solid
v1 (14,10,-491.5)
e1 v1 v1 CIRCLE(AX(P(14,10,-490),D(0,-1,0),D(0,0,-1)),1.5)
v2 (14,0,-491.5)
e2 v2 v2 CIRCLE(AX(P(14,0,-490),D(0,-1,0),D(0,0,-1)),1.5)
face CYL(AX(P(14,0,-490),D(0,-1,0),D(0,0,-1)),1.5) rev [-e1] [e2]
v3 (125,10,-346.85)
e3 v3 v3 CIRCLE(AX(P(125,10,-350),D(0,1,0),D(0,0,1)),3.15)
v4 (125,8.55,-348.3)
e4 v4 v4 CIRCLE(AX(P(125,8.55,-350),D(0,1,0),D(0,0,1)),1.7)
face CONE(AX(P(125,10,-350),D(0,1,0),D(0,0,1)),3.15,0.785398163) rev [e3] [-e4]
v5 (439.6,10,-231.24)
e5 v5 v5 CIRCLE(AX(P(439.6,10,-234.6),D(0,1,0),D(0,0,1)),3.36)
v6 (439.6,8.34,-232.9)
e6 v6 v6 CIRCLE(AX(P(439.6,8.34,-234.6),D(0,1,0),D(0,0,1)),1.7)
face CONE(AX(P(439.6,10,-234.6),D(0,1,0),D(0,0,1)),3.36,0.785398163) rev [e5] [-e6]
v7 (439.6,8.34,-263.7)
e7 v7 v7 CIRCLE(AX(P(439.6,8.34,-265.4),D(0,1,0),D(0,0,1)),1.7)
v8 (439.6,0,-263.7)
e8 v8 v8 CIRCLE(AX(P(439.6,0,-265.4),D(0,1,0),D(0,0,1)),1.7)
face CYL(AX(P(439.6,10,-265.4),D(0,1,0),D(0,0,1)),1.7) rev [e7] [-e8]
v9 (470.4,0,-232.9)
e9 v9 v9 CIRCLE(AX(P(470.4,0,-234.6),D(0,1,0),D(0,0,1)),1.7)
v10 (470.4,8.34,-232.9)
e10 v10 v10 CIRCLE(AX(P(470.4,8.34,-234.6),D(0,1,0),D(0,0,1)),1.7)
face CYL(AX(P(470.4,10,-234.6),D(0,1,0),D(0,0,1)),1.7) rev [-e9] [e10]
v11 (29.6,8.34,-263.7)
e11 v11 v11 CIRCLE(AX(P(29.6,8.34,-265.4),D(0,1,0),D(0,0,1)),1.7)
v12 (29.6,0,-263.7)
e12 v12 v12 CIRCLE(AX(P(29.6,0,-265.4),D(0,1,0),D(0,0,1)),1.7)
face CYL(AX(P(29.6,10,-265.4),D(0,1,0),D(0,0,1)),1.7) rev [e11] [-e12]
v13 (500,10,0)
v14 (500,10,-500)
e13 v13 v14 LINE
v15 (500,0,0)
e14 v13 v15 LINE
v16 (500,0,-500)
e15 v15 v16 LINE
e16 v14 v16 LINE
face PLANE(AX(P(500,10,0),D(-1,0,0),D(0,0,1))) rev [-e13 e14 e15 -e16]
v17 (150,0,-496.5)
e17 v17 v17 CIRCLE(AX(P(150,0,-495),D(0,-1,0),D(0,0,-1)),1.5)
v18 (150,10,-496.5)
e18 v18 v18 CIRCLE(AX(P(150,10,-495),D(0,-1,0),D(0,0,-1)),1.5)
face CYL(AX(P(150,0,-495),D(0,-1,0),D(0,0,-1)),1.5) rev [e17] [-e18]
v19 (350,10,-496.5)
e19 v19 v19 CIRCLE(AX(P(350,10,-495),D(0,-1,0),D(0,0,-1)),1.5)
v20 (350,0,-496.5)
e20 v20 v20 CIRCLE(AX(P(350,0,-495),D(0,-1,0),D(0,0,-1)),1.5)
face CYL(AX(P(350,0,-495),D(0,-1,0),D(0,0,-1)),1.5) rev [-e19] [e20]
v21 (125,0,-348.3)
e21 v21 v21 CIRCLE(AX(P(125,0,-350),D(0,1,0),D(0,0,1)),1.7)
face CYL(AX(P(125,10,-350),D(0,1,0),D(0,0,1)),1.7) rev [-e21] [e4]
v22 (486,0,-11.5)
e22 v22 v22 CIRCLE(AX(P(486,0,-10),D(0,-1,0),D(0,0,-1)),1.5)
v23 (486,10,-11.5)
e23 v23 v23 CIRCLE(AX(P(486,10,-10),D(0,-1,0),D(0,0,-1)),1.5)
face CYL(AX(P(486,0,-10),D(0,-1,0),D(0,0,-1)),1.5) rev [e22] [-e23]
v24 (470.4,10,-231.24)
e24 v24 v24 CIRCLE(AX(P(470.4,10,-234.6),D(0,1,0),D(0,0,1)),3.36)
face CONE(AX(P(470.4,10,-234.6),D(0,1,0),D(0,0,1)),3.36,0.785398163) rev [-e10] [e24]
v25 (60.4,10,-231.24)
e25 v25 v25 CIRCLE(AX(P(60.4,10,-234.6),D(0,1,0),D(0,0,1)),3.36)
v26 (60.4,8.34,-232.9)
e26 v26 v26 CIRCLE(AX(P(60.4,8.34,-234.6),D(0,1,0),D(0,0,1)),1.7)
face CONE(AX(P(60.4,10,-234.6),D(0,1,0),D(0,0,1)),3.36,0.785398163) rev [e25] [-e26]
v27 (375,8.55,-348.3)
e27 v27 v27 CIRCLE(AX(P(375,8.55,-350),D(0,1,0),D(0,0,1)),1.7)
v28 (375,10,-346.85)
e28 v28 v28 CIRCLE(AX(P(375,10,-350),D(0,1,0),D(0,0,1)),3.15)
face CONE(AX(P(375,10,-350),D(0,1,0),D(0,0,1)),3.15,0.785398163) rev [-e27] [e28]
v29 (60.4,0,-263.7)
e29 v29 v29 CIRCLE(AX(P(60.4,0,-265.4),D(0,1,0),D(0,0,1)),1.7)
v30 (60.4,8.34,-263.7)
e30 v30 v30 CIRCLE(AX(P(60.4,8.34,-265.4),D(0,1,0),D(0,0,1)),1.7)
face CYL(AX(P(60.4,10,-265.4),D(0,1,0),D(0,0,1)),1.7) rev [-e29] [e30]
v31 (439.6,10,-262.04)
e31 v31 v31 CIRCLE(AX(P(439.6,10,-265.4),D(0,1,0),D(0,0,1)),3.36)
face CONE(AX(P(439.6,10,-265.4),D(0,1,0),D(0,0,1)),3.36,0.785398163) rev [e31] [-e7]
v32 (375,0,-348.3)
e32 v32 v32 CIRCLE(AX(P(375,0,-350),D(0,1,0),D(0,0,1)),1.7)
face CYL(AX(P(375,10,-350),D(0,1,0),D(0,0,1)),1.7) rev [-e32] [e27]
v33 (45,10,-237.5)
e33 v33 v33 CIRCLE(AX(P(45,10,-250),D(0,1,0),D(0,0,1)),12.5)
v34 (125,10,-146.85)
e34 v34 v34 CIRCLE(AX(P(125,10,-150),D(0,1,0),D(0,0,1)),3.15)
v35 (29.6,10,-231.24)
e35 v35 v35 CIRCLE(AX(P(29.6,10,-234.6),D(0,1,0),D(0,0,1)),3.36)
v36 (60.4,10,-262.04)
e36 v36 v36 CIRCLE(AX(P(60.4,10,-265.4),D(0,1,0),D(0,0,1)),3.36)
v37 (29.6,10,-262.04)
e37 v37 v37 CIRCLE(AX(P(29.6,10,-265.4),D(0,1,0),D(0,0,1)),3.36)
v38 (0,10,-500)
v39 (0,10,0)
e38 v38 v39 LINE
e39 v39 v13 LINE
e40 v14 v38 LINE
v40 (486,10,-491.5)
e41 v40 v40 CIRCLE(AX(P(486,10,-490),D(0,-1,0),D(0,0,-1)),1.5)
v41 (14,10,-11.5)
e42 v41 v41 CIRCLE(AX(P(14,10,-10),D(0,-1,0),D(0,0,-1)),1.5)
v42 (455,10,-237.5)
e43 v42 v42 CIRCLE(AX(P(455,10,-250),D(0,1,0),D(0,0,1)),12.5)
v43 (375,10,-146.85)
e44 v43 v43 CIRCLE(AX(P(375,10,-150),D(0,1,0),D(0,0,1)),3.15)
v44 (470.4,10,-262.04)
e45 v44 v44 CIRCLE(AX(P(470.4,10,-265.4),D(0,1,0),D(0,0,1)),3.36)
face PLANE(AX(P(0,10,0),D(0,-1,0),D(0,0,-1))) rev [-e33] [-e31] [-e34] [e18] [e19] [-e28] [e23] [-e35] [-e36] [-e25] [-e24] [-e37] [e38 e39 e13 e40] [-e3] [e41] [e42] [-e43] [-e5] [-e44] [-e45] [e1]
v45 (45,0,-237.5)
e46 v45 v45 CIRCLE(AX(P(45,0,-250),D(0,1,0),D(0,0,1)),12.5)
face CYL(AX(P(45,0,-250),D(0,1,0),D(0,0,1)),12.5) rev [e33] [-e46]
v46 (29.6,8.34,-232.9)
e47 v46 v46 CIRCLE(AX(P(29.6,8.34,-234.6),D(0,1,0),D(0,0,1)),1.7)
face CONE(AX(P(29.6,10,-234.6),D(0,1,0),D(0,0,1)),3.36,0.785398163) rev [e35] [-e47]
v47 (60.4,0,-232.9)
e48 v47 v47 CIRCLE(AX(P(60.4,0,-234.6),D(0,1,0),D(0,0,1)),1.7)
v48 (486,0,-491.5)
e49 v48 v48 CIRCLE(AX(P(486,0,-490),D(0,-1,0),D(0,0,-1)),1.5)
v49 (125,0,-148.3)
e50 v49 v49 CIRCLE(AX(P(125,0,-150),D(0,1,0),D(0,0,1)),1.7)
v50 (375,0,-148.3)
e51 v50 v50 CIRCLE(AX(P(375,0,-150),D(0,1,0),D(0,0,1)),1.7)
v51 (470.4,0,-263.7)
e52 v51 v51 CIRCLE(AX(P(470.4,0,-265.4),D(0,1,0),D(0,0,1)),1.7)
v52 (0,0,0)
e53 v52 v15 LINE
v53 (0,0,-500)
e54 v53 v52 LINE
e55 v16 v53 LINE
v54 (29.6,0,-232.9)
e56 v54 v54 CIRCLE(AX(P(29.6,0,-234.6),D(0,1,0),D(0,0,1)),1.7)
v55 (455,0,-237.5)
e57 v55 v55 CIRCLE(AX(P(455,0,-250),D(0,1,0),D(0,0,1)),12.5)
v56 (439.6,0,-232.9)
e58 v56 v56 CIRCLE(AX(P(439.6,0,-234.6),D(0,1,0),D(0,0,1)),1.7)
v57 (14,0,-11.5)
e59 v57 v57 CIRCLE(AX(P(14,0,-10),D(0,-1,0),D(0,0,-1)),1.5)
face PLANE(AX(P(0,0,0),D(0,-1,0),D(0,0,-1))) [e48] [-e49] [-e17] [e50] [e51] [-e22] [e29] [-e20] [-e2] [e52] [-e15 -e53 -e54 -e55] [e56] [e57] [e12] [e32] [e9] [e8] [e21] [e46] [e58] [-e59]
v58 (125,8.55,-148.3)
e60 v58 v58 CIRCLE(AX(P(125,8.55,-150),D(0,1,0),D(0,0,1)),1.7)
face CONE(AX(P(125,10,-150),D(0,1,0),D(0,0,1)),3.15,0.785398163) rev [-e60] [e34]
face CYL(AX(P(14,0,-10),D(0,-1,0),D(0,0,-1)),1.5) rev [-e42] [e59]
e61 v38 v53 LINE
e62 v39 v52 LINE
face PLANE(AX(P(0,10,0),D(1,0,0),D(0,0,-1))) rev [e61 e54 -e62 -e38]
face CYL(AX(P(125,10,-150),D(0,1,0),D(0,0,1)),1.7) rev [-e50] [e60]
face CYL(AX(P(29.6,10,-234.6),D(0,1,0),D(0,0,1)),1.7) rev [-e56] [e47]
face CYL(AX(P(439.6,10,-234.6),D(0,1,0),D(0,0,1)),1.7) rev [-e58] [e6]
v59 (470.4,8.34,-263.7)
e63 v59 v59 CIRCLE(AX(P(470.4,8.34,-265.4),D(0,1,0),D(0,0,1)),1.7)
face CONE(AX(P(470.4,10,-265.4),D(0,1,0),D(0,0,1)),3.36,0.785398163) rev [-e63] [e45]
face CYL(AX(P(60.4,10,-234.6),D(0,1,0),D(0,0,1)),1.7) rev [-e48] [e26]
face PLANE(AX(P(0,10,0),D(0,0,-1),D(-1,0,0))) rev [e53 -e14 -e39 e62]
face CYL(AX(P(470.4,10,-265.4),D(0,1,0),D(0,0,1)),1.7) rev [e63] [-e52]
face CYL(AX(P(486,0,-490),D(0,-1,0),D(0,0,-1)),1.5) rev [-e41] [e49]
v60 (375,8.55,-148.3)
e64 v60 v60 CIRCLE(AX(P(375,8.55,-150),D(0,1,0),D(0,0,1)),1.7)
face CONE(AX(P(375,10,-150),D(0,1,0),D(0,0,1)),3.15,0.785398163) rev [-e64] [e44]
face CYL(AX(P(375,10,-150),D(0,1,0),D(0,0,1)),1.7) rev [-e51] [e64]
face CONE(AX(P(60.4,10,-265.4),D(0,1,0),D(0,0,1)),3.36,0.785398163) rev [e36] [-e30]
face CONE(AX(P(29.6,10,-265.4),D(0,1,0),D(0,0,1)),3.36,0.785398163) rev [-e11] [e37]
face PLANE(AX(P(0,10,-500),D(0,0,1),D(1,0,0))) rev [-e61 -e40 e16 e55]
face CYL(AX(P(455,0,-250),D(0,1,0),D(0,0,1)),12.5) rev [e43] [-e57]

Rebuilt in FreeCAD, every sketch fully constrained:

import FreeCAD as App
import Part
import Sketcher
from FreeCAD import Vector
Q = App.Units.Quantity


def add_polygon(sketch, points):
    """Adds a closed chain of lines whose ends are joined by coincident constraints."""
    first, n = sketch.GeometryCount, len(points)
    for a, b in zip(points, points[1:] + points[:1]):
        sketch.addGeometry(Part.LineSegment(App.Vector(*a, 0), App.Vector(*b, 0)), False)
    for i in range(n):
        sketch.addConstraint(Sketcher.Constraint("Coincident", first + i, 2, first + (i + 1) % n, 1))

doc = App.newDocument("Part")
body = doc.addObject("PartDesign::Body", "Body")

# Sketch on XZ plane
sketch1 = body.newObject("Sketcher::SketchObject", "Sketch")
sketch1.AttachmentSupport = (doc.getObject("XZ_Plane"), [""])
sketch1.MapMode = "FlatFace"
add_polygon(sketch1, [(0, -500), (0, 0), (500, 0), (500, -500)])  # lines 0-3
sketch1.addConstraint([
    Sketcher.Constraint("Vertical", 0),
    Sketcher.Constraint("Horizontal", 1),
    Sketcher.Constraint("Vertical", 2),
    Sketcher.Constraint("Horizontal", 3),
    Sketcher.Constraint("Coincident", 0, 2, -1, 1),
    Sketcher.Constraint("Equal", 3, 0),
    Sketcher.Constraint("DistanceX", 1, 1, 1, 2, Q("500 mm")),
])
pad1 = body.newObject("PartDesign::Pad", "Pad")
pad1.Profile = sketch1
pad1.Length = 10
pad1.Reversed = True

# Sketch on XZ plane
sketch2 = body.newObject("Sketcher::SketchObject", "Sketch001")
sketch2.AttachmentSupport = (doc.getObject("XZ_Plane"), [""])
sketch2.MapMode = "FlatFace"
sketch2.AttachmentOffset = App.Placement(Vector(0, 0, -10), App.Rotation())
sketch2.addGeometry([
    Part.Circle(Vector(45, -250, 0), Vector(0, 0, 1), 12),
    Part.Circle(Vector(455, -250, 0), Vector(0, 0, 1), 12),
], False)
sketch2.addConstraint([
    Sketcher.Constraint("Equal", 0, 1),
    Sketcher.Constraint("Horizontal", 0, 3, 1, 3),
    Sketcher.Constraint("Diameter", 0, Q("25 mm")),
    Sketcher.Constraint("DistanceX", -1, 1, 0, 3, Q("45 mm")),
    Sketcher.Constraint("DistanceY", 0, 3, -1, 1, Q("250 mm")),
    Sketcher.Constraint("DistanceX", -1, 1, 1, 3, Q("455 mm")),
])
pocket1 = body.newObject("PartDesign::Pocket", "Pocket")
pocket1.Profile = sketch2
pocket1.Type = "ThroughAll"
pocket1.Reversed = True

# Sketch on XZ plane
sketch3 = body.newObject("Sketcher::SketchObject", "Sketch002")
sketch3.AttachmentSupport = (doc.getObject("XZ_Plane"), [""])
sketch3.MapMode = "FlatFace"
sketch3.AttachmentOffset = App.Placement(Vector(0, 0, -10), App.Rotation())
sketch3.addGeometry([
    Part.Circle(Vector(439.6, -265.4, 0), Vector(0, 0, 1), 1.7),  # 0
    Part.Circle(Vector(439.6, -234.6, 0), Vector(0, 0, 1), 1.7),  # 1
    Part.Circle(Vector(470.4, -234.6, 0), Vector(0, 0, 1), 1.7),  # 2
    Part.Circle(Vector(470.4, -265.4, 0), Vector(0, 0, 1), 1.7),  # 3
    Part.Circle(Vector(60.4, -234.6, 0), Vector(0, 0, 1), 1.7),  # 4
    Part.Circle(Vector(60.4, -265.4, 0), Vector(0, 0, 1), 1.7),  # 5
    Part.Circle(Vector(29.6, -234.6, 0), Vector(0, 0, 1), 1.7),  # 6
    Part.Circle(Vector(29.6, -265.4, 0), Vector(0, 0, 1), 1.7),  # 7
], False)
sketch3.addConstraint([
    Sketcher.Constraint("Equal", 0, 1),
    Sketcher.Constraint("Equal", 1, 2),
    Sketcher.Constraint("Equal", 2, 3),
    Sketcher.Constraint("Equal", 3, 4),
    Sketcher.Constraint("Equal", 4, 5),
    Sketcher.Constraint("Equal", 5, 6),
    Sketcher.Constraint("Equal", 6, 7),
    Sketcher.Constraint("Horizontal", 1, 3, 2, 3),
    Sketcher.Constraint("Horizontal", 0, 3, 3, 3),
    Sketcher.Constraint("Horizontal", 2, 3, 4, 3),
    Sketcher.Constraint("Horizontal", 3, 3, 5, 3),
    Sketcher.Constraint("Horizontal", 4, 3, 6, 3),
    Sketcher.Constraint("Horizontal", 5, 3, 7, 3),
    Sketcher.Constraint("Vertical", 0, 3, 1, 3),
    Sketcher.Constraint("Vertical", 2, 3, 3, 3),
    Sketcher.Constraint("Vertical", 4, 3, 5, 3),
    Sketcher.Constraint("Vertical", 6, 3, 7, 3),
    Sketcher.Constraint("Diameter", 0, Q("3.4 mm")),
    Sketcher.Constraint("DistanceX", 4, 3, 2, 3, Q("410 mm")),
    Sketcher.Constraint("DistanceX", 6, 3, 1, 3, Q("410 mm")),
    Sketcher.Constraint("DistanceX", -1, 1, 0, 3, Q("439.6 mm")),
    Sketcher.Constraint("DistanceY", 0, 3, -1, 1, Q("265.4 mm")),
    Sketcher.Constraint("DistanceY", 1, 3, -1, 1, Q("234.6 mm")),
    Sketcher.Constraint("DistanceX", -1, 1, 2, 3, Q("470.4 mm")),
])
doc.recompute()
hole = body.newObject("PartDesign::Hole", "Hole")
hole.Profile = sketch3
hole.ThreadType = "None"
hole.Diameter = 3.4
hole.DepthType = "ThroughAll"
hole.HoleCutType = "Countersink"
hole.HoleCutDiameter = 6.72
hole.HoleCutCountersinkAngle = 90
hole.Reversed = True

# Sketch on XZ plane
sketch4 = body.newObject("Sketcher::SketchObject", "Sketch003")
sketch4.AttachmentSupport = (doc.getObject("XZ_Plane"), [""])
sketch4.MapMode = "FlatFace"
sketch4.AttachmentOffset = App.Placement(Vector(0, 0, -10), App.Rotation())
sketch4.addGeometry([
    Part.Circle(Vector(375, -350, 0), Vector(0, 0, 1), 1.7),
    Part.Circle(Vector(375, -150, 0), Vector(0, 0, 1), 1.7),
    Part.Circle(Vector(125, -350, 0), Vector(0, 0, 1), 1.7),
    Part.Circle(Vector(125, -150, 0), Vector(0, 0, 1), 1.7),
], False)
sketch4.addConstraint([
    Sketcher.Constraint("Equal", 0, 1),
    Sketcher.Constraint("Equal", 1, 2),
    Sketcher.Constraint("Equal", 2, 3),
    Sketcher.Constraint("Horizontal", 0, 3, 2, 3),
    Sketcher.Constraint("Horizontal", 1, 3, 3, 3),
    Sketcher.Constraint("Vertical", 0, 3, 1, 3),
    Sketcher.Constraint("Vertical", 2, 3, 3, 3),
    Sketcher.Constraint("Diameter", 0, Q("3.4 mm")),
    Sketcher.Constraint("DistanceX", -1, 1, 0, 3, Q("375 mm")),
    Sketcher.Constraint("DistanceY", 0, 3, -1, 1, Q("350 mm")),
    Sketcher.Constraint("DistanceY", 1, 3, -1, 1, Q("150 mm")),
    Sketcher.Constraint("DistanceX", -1, 1, 2, 3, Q("125 mm")),
])
doc.recompute()
hole2 = body.newObject("PartDesign::Hole", "Hole001")
hole2.Profile = sketch4
hole2.ThreadType = "None"
hole2.Diameter = 3.4
hole2.DepthType = "Dimension"
hole2.Depth = 10
hole2.DrillPoint = "Angled"
hole2.DrillPointAngle = 118
hole2.HoleCutType = "Countersink"
hole2.HoleCutDiameter = 6.3
hole2.HoleCutCountersinkAngle = 90
hole2.Reversed = True

# Sketch on XZ plane
sketch5 = body.newObject("Sketcher::SketchObject", "Sketch004")
sketch5.AttachmentSupport = (doc.getObject("XZ_Plane"), [""])
sketch5.MapMode = "FlatFace"
sketch5.addGeometry([
    Part.Circle(Vector(486, -490, 0), Vector(0, 0, 1), 1.5),
    Part.Circle(Vector(486, -10, 0), Vector(0, 0, 1), 1.5),
    Part.Circle(Vector(14, -10, 0), Vector(0, 0, 1), 1.5),
    Part.Circle(Vector(14, -490, 0), Vector(0, 0, 1), 1.5),
], False)
sketch5.addConstraint([
    Sketcher.Constraint("Equal", 0, 1),
    Sketcher.Constraint("Equal", 1, 2),
    Sketcher.Constraint("Equal", 2, 3),
    Sketcher.Constraint("Horizontal", 1, 3, 2, 3),
    Sketcher.Constraint("Horizontal", 0, 3, 3, 3),
    Sketcher.Constraint("Vertical", 0, 3, 1, 3),
    Sketcher.Constraint("Vertical", 2, 3, 3, 3),
    Sketcher.Constraint("Diameter", 0, Q("3 mm")),
    Sketcher.Constraint("DistanceX", -1, 1, 0, 3, Q("486 mm")),
    Sketcher.Constraint("DistanceY", 0, 3, -1, 1, Q("490 mm")),
    Sketcher.Constraint("DistanceY", 1, 3, -1, 1, Q("10 mm")),
    Sketcher.Constraint("DistanceX", -1, 1, 2, 3, Q("14 mm")),
])
doc.recompute()
hole3 = body.newObject("PartDesign::Hole", "Hole002")
hole3.Profile = sketch5
hole3.ThreadType = "None"
hole3.Diameter = 3
hole3.DepthType = "Dimension"
hole3.Depth = 10
hole3.DrillPoint = "Angled"
hole3.DrillPointAngle = 118

# Sketch on XZ plane
sketch6 = body.newObject("Sketcher::SketchObject", "Sketch005")
sketch6.AttachmentSupport = (doc.getObject("XZ_Plane"), [""])
sketch6.MapMode = "FlatFace"
sketch6.addGeometry([
    Part.Circle(Vector(150, -495, 0), Vector(0, 0, 1), 1.5),
    Part.Circle(Vector(350, -495, 0), Vector(0, 0, 1), 1.5),
], False)
sketch6.addConstraint([
    Sketcher.Constraint("Equal", 0, 1),
    Sketcher.Constraint("Horizontal", 0, 3, 1, 3),
    Sketcher.Constraint("Diameter", 0, Q("3 mm")),
    Sketcher.Constraint("DistanceX", -1, 1, 0, 3, Q("150 mm")),
    Sketcher.Constraint("DistanceY", 0, 3, -1, 1, Q("495 mm")),
    Sketcher.Constraint("DistanceX", -1, 1, 1, 3, Q("350 mm")),
])
doc.recompute()
hole4 = body.newObject("PartDesign::Hole", "Hole003")
hole4.Profile = sketch6
hole4.ThreadType = "None"
hole4.Diameter = 3
hole4.DepthType = "Dimension"
hole4.Depth = 10
hole4.DrillPoint = "Angled"
hole4.DrillPointAngle = 118

doc.recompute()
